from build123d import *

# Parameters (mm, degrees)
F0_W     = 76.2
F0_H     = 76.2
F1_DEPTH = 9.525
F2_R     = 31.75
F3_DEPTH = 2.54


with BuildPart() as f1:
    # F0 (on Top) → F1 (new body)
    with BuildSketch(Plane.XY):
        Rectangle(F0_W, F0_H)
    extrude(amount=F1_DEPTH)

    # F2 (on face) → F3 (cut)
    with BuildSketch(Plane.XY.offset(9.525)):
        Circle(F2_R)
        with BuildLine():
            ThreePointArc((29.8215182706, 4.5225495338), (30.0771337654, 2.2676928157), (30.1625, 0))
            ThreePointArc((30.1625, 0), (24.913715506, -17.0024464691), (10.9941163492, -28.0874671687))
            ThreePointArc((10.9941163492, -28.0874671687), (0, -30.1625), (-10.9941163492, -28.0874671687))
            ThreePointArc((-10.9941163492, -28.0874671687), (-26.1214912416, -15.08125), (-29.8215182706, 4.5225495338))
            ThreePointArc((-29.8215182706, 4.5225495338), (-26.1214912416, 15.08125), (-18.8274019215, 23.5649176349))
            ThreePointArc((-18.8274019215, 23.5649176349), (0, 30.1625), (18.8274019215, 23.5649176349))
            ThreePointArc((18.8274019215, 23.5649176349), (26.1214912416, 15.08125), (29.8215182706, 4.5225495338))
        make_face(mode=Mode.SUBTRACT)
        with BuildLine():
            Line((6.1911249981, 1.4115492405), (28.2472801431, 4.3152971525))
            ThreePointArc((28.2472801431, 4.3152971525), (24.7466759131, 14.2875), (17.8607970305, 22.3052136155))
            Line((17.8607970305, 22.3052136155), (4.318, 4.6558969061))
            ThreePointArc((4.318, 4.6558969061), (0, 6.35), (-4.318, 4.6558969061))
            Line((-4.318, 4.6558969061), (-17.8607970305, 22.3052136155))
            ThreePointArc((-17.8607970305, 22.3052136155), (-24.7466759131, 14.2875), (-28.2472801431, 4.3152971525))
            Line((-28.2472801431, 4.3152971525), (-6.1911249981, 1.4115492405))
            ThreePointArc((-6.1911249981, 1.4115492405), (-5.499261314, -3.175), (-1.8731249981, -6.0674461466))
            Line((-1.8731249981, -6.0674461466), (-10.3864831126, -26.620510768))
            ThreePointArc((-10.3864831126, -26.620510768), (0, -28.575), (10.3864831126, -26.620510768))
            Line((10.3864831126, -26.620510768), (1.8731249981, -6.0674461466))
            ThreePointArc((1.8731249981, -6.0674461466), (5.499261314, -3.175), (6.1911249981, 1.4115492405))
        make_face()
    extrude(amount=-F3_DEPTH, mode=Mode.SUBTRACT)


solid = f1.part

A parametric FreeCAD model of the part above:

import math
import FreeCAD as App
import Part
import Sketcher
Q = App.Units.Quantity

doc = App.newDocument("Part")
body = doc.addObject("PartDesign::Body", "Body")

sketch1 = doc.addObject("Sketcher::SketchObject", "Sketch")
body.addObject(sketch1)
sketch1.AttachmentSupport = (doc.XY_Plane, [""])
sketch1.MapMode = "FlatFace"
sketch1.addGeometry(Part.LineSegment(App.Vector(-38.1, 38.1, 0), App.Vector(-38.1, -38.1, 0)), False)
sketch1.addGeometry(Part.LineSegment(App.Vector(-38.1, -38.1, 0), App.Vector(38.1, -38.1, 0)), False)
sketch1.addGeometry(Part.LineSegment(App.Vector(38.1, -38.1, 0), App.Vector(38.1, 38.1, 0)), False)
sketch1.addGeometry(Part.LineSegment(App.Vector(38.1, 38.1, 0), App.Vector(-38.1, 38.1, 0)), False)
sketch1.addConstraint(Sketcher.Constraint("Coincident", 0, 2, 1, 1))
sketch1.addConstraint(Sketcher.Constraint("Coincident", 1, 2, 2, 1))
sketch1.addConstraint(Sketcher.Constraint("Coincident", 2, 2, 3, 1))
sketch1.addConstraint(Sketcher.Constraint("Coincident", 3, 2, 0, 1))
sketch1.addConstraint(Sketcher.Constraint("Vertical", 0))
sketch1.addConstraint(Sketcher.Constraint("Horizontal", 1))
sketch1.addConstraint(Sketcher.Constraint("Vertical", 2))
sketch1.addConstraint(Sketcher.Constraint("Horizontal", 3))
sketch1.addConstraint(Sketcher.Constraint("Symmetric", 0, 2, 2, 2, -1, 1))
sketch1.addConstraint(Sketcher.Constraint("Equal", 3, 0))
sketch1.addConstraint(Sketcher.Constraint("DistanceX", 1, 1, 1, 2, Q("3 in")))
pad1 = doc.addObject("PartDesign::Pad", "Pad")
body.addObject(pad1)
pad1.Profile = sketch1
pad1.Length = Q("0.375 in")

sketch2 = doc.addObject("Sketcher::SketchObject", "Sketch001")
body.addObject(sketch2)
sketch2.AttachmentSupport = (doc.XY_Plane, [""])
sketch2.MapMode = "FlatFace"
sketch2.AttachmentOffset = App.Placement(App.Vector(0, 0, 0.375 * 25.4), App.Rotation())
sketch2.addGeometry(Part.Circle(App.Vector(0, 0, 0), App.Vector(0, 0, 1), 31.75), False)
sketch2.addGeometry(Part.ArcOfCircle(Part.Circle(App.Vector(0, 0, 0), App.Vector(0, 0, 1), 30.1625), math.radians(8.623419), math.radians(51.376581)), False)
sketch2.addGeometry(Part.ArcOfCircle(Part.Circle(App.Vector(0, 0, 0), App.Vector(0, 0, 1), 30.1625), math.radians(0), math.radians(8.623419)), False)
sketch2.addGeometry(Part.ArcOfCircle(Part.Circle(App.Vector(0, 0, 0), App.Vector(0, 0, 1), 30.1625), math.radians(-68.623419), math.radians(0)), False)
sketch2.addGeometry(Part.ArcOfCircle(Part.Circle(App.Vector(0, 0, 0), App.Vector(0, 0, 1), 30.1625), math.radians(-111.376581), math.radians(-68.623419)), False)
sketch2.addGeometry(Part.ArcOfCircle(Part.Circle(App.Vector(0, 0, 0), App.Vector(0, 0, 1), 30.1625), math.radians(171.376581), math.radians(248.623419)), False)
sketch2.addGeometry(Part.ArcOfCircle(Part.Circle(App.Vector(0, 0, 0), App.Vector(0, 0, 1), 30.1625), math.radians(128.623419), math.radians(171.376581)), False)
sketch2.addGeometry(Part.ArcOfCircle(Part.Circle(App.Vector(0, 0, 0), App.Vector(0, 0, 1), 30.1625), math.radians(51.376581), math.radians(128.623419)), False)
sketch2.addGeometry(Part.LineSegment(App.Vector(6.191125, 1.411549, 0), App.Vector(28.24728, 4.315297, 0)), False)
sketch2.addGeometry(Part.ArcOfCircle(Part.Circle(App.Vector(0, 0, 0), App.Vector(0, 0, 1), 28.575), math.radians(8.68584), math.radians(51.31416)), False)
sketch2.addGeometry(Part.LineSegment(App.Vector(17.860797, 22.305214, 0), App.Vector(4.318, 4.655897, 0)), False)
sketch2.addGeometry(Part.ArcOfCircle(Part.Circle(App.Vector(0, 0, 0), App.Vector(0, 0, 1), 6.35), math.radians(47.156357), math.radians(132.843643)), False)
sketch2.addGeometry(Part.LineSegment(App.Vector(-4.318, 4.655897, 0), App.Vector(-17.860797, 22.305214, 0)), False)
sketch2.addGeometry(Part.ArcOfCircle(Part.Circle(App.Vector(0, 0, 0), App.Vector(0, 0, 1), 28.575), math.radians(128.68584), math.radians(171.31416)), False)
sketch2.addGeometry(Part.LineSegment(App.Vector(-28.24728, 4.315297, 0), App.Vector(-6.191125, 1.411549, 0)), False)
sketch2.addGeometry(Part.ArcOfCircle(Part.Circle(App.Vector(0, 0, 0), App.Vector(0, 0, 1), 6.35), math.radians(167.156357), math.radians(252.843643)), False)
sketch2.addGeometry(Part.LineSegment(App.Vector(-1.873125, -6.067446, 0), App.Vector(-10.386483, -26.620511, 0)), False)
sketch2.addGeometry(Part.ArcOfCircle(Part.Circle(App.Vector(0, 0, 0), App.Vector(0, 0, 1), 28.575), math.radians(-111.31416), math.radians(-68.68584)), False)
sketch2.addGeometry(Part.LineSegment(App.Vector(10.386483, -26.620511, 0), App.Vector(1.873125, -6.067446, 0)), False)
sketch2.addGeometry(Part.ArcOfCircle(Part.Circle(App.Vector(0, 0, 0), App.Vector(0, 0, 1), 6.35), math.radians(-72.843643), math.radians(12.843643)), False)
sketch2.addConstraint(Sketcher.Constraint("Tangent", 1, 1, 2, 2))
sketch2.addConstraint(Sketcher.Constraint("Tangent", 2, 1, 3, 2))
sketch2.addConstraint(Sketcher.Constraint("Tangent", 3, 1, 4, 2))
sketch2.addConstraint(Sketcher.Constraint("Tangent", 4, 1, 5, 2))
sketch2.addConstraint(Sketcher.Constraint("Tangent", 5, 1, 6, 2))
sketch2.addConstraint(Sketcher.Constraint("Tangent", 6, 1, 7, 2))
sketch2.addConstraint(Sketcher.Constraint("Tangent", 7, 1, 1, 2))
sketch2.addConstraint(Sketcher.Constraint("Coincident", 8, 2, 9, 1))
sketch2.addConstraint(Sketcher.Constraint("Coincident", 9, 2, 10, 1))
sketch2.addConstraint(Sketcher.Constraint("Coincident", 10, 2, 11, 1))
sketch2.addConstraint(Sketcher.Constraint("Coincident", 11, 2, 12, 1))
sketch2.addConstraint(Sketcher.Constraint("Coincident", 12, 2, 13, 1))
sketch2.addConstraint(Sketcher.Constraint("Coincident", 13, 2, 14, 1))
sketch2.addConstraint(Sketcher.Constraint("Coincident", 14, 2, 15, 1))
sketch2.addConstraint(Sketcher.Constraint("Coincident", 15, 2, 16, 1))
sketch2.addConstraint(Sketcher.Constraint("Coincident", 16, 2, 17, 1))
sketch2.addConstraint(Sketcher.Constraint("Coincident", 17, 2, 18, 1))
sketch2.addConstraint(Sketcher.Constraint("Coincident", 18, 2, 19, 1))
sketch2.addConstraint(Sketcher.Constraint("Coincident", 19, 2, 8, 1))
sketch2.addConstraint(Sketcher.Constraint("Coincident", 0, 3, -1, 1))
sketch2.addConstraint(Sketcher.Constraint("Coincident", 1, 3, -1, 1))
sketch2.addConstraint(Sketcher.Constraint("Coincident", 3, 3, -1, 1))
sketch2.addConstraint(Sketcher.Constraint("Coincident", 5, 3, -1, 1))
sketch2.addConstraint(Sketcher.Constraint("Coincident", 9, 3, -1, 1))
sketch2.addConstraint(Sketcher.Constraint("Coincident", 11, 3, -1, 1))
sketch2.addConstraint(Sketcher.Constraint("Coincident", 13, 3, -1, 1))
sketch2.addConstraint(Sketcher.Constraint("Coincident", 15, 3, -1, 1))
sketch2.addConstraint(Sketcher.Constraint("Coincident", 17, 3, -1, 1))
sketch2.addConstraint(Sketcher.Constraint("Coincident", 19, 3, -1, 1))
sketch2.addConstraint(Sketcher.Constraint("Equal", 9, 13))
sketch2.addConstraint(Sketcher.Constraint("Equal", 11, 15))
sketch2.addConstraint(Sketcher.Constraint("Equal", 13, 17))
sketch2.addConstraint(Sketcher.Constraint("Equal", 15, 19))
sketch2.addConstraint(Sketcher.Constraint("PointOnObject", 2, 1, -1))
sketch2.addConstraint(Sketcher.Constraint("Horizontal", 3, 1, 4, 1))
sketch2.addConstraint(Sketcher.Constraint("Horizontal", 1, 1, 5, 1))
sketch2.addConstraint(Sketcher.Constraint("Horizontal", 6, 1, 7, 1))
sketch2.addConstraint(Sketcher.Constraint("Horizontal", 10, 2, 11, 2))
sketch2.addConstraint(Sketcher.Constraint("Horizontal", 9, 2, 12, 2))
sketch2.addConstraint(Sketcher.Constraint("Horizontal", 8, 2, 13, 2))
sketch2.addConstraint(Sketcher.Constraint("Horizontal", 16, 2, 17, 2))
sketch2.addConstraint(Sketcher.Constraint("Horizontal", 15, 2, 18, 2))
sketch2.addConstraint(Sketcher.Constraint("Horizontal", 14, 2, 19, 2))
sketch2.addConstraint(Sketcher.Constraint("Equal", 8, 10))
sketch2.addConstraint(Sketcher.Constraint("Equal", 14, 16))
sketch2.addConstraint(Sketcher.Constraint("Diameter", 0, Q("2.5 in")))
sketch2.addConstraint(Sketcher.Constraint("Radius", 11, Q("0.25 in")))
sketch2.addConstraint(Sketcher.Constraint("Radius", 1, Q("1.1875 in")))
sketch2.addConstraint(Sketcher.Constraint("Radius", 9, Q("1.125 in")))
sketch2.addConstraint(Sketcher.Constraint("Angle", 8, Q("7.5 deg")))
sketch2.addConstraint(Sketcher.Constraint("Angle", 10, Q("-127.5 deg")))
sketch2.addConstraint(Sketcher.Constraint("Angle", 16, Q("-112.5 deg")))
sketch2.addConstraint(Sketcher.Constraint("DistanceX", -1, 1, 10, 2, Q("0.17 in")))
sketch2.addConstraint(Sketcher.Constraint("DistanceX", 6, 1, -1, 1, 18.827402))
sketch2.addConstraint(Sketcher.Constraint("DistanceX", 16, 2, 3, 1, 21.380599))
sketch2.addConstraint(Sketcher.Constraint("DistanceX", -1, 1, 1, 1, 29.821518))
pocket1 = doc.addObject("PartDesign::Pocket", "Pocket")
body.addObject(pocket1)
pocket1.Profile = sketch2
pocket1.Length = Q("0.1 in")

doc.recompute()
